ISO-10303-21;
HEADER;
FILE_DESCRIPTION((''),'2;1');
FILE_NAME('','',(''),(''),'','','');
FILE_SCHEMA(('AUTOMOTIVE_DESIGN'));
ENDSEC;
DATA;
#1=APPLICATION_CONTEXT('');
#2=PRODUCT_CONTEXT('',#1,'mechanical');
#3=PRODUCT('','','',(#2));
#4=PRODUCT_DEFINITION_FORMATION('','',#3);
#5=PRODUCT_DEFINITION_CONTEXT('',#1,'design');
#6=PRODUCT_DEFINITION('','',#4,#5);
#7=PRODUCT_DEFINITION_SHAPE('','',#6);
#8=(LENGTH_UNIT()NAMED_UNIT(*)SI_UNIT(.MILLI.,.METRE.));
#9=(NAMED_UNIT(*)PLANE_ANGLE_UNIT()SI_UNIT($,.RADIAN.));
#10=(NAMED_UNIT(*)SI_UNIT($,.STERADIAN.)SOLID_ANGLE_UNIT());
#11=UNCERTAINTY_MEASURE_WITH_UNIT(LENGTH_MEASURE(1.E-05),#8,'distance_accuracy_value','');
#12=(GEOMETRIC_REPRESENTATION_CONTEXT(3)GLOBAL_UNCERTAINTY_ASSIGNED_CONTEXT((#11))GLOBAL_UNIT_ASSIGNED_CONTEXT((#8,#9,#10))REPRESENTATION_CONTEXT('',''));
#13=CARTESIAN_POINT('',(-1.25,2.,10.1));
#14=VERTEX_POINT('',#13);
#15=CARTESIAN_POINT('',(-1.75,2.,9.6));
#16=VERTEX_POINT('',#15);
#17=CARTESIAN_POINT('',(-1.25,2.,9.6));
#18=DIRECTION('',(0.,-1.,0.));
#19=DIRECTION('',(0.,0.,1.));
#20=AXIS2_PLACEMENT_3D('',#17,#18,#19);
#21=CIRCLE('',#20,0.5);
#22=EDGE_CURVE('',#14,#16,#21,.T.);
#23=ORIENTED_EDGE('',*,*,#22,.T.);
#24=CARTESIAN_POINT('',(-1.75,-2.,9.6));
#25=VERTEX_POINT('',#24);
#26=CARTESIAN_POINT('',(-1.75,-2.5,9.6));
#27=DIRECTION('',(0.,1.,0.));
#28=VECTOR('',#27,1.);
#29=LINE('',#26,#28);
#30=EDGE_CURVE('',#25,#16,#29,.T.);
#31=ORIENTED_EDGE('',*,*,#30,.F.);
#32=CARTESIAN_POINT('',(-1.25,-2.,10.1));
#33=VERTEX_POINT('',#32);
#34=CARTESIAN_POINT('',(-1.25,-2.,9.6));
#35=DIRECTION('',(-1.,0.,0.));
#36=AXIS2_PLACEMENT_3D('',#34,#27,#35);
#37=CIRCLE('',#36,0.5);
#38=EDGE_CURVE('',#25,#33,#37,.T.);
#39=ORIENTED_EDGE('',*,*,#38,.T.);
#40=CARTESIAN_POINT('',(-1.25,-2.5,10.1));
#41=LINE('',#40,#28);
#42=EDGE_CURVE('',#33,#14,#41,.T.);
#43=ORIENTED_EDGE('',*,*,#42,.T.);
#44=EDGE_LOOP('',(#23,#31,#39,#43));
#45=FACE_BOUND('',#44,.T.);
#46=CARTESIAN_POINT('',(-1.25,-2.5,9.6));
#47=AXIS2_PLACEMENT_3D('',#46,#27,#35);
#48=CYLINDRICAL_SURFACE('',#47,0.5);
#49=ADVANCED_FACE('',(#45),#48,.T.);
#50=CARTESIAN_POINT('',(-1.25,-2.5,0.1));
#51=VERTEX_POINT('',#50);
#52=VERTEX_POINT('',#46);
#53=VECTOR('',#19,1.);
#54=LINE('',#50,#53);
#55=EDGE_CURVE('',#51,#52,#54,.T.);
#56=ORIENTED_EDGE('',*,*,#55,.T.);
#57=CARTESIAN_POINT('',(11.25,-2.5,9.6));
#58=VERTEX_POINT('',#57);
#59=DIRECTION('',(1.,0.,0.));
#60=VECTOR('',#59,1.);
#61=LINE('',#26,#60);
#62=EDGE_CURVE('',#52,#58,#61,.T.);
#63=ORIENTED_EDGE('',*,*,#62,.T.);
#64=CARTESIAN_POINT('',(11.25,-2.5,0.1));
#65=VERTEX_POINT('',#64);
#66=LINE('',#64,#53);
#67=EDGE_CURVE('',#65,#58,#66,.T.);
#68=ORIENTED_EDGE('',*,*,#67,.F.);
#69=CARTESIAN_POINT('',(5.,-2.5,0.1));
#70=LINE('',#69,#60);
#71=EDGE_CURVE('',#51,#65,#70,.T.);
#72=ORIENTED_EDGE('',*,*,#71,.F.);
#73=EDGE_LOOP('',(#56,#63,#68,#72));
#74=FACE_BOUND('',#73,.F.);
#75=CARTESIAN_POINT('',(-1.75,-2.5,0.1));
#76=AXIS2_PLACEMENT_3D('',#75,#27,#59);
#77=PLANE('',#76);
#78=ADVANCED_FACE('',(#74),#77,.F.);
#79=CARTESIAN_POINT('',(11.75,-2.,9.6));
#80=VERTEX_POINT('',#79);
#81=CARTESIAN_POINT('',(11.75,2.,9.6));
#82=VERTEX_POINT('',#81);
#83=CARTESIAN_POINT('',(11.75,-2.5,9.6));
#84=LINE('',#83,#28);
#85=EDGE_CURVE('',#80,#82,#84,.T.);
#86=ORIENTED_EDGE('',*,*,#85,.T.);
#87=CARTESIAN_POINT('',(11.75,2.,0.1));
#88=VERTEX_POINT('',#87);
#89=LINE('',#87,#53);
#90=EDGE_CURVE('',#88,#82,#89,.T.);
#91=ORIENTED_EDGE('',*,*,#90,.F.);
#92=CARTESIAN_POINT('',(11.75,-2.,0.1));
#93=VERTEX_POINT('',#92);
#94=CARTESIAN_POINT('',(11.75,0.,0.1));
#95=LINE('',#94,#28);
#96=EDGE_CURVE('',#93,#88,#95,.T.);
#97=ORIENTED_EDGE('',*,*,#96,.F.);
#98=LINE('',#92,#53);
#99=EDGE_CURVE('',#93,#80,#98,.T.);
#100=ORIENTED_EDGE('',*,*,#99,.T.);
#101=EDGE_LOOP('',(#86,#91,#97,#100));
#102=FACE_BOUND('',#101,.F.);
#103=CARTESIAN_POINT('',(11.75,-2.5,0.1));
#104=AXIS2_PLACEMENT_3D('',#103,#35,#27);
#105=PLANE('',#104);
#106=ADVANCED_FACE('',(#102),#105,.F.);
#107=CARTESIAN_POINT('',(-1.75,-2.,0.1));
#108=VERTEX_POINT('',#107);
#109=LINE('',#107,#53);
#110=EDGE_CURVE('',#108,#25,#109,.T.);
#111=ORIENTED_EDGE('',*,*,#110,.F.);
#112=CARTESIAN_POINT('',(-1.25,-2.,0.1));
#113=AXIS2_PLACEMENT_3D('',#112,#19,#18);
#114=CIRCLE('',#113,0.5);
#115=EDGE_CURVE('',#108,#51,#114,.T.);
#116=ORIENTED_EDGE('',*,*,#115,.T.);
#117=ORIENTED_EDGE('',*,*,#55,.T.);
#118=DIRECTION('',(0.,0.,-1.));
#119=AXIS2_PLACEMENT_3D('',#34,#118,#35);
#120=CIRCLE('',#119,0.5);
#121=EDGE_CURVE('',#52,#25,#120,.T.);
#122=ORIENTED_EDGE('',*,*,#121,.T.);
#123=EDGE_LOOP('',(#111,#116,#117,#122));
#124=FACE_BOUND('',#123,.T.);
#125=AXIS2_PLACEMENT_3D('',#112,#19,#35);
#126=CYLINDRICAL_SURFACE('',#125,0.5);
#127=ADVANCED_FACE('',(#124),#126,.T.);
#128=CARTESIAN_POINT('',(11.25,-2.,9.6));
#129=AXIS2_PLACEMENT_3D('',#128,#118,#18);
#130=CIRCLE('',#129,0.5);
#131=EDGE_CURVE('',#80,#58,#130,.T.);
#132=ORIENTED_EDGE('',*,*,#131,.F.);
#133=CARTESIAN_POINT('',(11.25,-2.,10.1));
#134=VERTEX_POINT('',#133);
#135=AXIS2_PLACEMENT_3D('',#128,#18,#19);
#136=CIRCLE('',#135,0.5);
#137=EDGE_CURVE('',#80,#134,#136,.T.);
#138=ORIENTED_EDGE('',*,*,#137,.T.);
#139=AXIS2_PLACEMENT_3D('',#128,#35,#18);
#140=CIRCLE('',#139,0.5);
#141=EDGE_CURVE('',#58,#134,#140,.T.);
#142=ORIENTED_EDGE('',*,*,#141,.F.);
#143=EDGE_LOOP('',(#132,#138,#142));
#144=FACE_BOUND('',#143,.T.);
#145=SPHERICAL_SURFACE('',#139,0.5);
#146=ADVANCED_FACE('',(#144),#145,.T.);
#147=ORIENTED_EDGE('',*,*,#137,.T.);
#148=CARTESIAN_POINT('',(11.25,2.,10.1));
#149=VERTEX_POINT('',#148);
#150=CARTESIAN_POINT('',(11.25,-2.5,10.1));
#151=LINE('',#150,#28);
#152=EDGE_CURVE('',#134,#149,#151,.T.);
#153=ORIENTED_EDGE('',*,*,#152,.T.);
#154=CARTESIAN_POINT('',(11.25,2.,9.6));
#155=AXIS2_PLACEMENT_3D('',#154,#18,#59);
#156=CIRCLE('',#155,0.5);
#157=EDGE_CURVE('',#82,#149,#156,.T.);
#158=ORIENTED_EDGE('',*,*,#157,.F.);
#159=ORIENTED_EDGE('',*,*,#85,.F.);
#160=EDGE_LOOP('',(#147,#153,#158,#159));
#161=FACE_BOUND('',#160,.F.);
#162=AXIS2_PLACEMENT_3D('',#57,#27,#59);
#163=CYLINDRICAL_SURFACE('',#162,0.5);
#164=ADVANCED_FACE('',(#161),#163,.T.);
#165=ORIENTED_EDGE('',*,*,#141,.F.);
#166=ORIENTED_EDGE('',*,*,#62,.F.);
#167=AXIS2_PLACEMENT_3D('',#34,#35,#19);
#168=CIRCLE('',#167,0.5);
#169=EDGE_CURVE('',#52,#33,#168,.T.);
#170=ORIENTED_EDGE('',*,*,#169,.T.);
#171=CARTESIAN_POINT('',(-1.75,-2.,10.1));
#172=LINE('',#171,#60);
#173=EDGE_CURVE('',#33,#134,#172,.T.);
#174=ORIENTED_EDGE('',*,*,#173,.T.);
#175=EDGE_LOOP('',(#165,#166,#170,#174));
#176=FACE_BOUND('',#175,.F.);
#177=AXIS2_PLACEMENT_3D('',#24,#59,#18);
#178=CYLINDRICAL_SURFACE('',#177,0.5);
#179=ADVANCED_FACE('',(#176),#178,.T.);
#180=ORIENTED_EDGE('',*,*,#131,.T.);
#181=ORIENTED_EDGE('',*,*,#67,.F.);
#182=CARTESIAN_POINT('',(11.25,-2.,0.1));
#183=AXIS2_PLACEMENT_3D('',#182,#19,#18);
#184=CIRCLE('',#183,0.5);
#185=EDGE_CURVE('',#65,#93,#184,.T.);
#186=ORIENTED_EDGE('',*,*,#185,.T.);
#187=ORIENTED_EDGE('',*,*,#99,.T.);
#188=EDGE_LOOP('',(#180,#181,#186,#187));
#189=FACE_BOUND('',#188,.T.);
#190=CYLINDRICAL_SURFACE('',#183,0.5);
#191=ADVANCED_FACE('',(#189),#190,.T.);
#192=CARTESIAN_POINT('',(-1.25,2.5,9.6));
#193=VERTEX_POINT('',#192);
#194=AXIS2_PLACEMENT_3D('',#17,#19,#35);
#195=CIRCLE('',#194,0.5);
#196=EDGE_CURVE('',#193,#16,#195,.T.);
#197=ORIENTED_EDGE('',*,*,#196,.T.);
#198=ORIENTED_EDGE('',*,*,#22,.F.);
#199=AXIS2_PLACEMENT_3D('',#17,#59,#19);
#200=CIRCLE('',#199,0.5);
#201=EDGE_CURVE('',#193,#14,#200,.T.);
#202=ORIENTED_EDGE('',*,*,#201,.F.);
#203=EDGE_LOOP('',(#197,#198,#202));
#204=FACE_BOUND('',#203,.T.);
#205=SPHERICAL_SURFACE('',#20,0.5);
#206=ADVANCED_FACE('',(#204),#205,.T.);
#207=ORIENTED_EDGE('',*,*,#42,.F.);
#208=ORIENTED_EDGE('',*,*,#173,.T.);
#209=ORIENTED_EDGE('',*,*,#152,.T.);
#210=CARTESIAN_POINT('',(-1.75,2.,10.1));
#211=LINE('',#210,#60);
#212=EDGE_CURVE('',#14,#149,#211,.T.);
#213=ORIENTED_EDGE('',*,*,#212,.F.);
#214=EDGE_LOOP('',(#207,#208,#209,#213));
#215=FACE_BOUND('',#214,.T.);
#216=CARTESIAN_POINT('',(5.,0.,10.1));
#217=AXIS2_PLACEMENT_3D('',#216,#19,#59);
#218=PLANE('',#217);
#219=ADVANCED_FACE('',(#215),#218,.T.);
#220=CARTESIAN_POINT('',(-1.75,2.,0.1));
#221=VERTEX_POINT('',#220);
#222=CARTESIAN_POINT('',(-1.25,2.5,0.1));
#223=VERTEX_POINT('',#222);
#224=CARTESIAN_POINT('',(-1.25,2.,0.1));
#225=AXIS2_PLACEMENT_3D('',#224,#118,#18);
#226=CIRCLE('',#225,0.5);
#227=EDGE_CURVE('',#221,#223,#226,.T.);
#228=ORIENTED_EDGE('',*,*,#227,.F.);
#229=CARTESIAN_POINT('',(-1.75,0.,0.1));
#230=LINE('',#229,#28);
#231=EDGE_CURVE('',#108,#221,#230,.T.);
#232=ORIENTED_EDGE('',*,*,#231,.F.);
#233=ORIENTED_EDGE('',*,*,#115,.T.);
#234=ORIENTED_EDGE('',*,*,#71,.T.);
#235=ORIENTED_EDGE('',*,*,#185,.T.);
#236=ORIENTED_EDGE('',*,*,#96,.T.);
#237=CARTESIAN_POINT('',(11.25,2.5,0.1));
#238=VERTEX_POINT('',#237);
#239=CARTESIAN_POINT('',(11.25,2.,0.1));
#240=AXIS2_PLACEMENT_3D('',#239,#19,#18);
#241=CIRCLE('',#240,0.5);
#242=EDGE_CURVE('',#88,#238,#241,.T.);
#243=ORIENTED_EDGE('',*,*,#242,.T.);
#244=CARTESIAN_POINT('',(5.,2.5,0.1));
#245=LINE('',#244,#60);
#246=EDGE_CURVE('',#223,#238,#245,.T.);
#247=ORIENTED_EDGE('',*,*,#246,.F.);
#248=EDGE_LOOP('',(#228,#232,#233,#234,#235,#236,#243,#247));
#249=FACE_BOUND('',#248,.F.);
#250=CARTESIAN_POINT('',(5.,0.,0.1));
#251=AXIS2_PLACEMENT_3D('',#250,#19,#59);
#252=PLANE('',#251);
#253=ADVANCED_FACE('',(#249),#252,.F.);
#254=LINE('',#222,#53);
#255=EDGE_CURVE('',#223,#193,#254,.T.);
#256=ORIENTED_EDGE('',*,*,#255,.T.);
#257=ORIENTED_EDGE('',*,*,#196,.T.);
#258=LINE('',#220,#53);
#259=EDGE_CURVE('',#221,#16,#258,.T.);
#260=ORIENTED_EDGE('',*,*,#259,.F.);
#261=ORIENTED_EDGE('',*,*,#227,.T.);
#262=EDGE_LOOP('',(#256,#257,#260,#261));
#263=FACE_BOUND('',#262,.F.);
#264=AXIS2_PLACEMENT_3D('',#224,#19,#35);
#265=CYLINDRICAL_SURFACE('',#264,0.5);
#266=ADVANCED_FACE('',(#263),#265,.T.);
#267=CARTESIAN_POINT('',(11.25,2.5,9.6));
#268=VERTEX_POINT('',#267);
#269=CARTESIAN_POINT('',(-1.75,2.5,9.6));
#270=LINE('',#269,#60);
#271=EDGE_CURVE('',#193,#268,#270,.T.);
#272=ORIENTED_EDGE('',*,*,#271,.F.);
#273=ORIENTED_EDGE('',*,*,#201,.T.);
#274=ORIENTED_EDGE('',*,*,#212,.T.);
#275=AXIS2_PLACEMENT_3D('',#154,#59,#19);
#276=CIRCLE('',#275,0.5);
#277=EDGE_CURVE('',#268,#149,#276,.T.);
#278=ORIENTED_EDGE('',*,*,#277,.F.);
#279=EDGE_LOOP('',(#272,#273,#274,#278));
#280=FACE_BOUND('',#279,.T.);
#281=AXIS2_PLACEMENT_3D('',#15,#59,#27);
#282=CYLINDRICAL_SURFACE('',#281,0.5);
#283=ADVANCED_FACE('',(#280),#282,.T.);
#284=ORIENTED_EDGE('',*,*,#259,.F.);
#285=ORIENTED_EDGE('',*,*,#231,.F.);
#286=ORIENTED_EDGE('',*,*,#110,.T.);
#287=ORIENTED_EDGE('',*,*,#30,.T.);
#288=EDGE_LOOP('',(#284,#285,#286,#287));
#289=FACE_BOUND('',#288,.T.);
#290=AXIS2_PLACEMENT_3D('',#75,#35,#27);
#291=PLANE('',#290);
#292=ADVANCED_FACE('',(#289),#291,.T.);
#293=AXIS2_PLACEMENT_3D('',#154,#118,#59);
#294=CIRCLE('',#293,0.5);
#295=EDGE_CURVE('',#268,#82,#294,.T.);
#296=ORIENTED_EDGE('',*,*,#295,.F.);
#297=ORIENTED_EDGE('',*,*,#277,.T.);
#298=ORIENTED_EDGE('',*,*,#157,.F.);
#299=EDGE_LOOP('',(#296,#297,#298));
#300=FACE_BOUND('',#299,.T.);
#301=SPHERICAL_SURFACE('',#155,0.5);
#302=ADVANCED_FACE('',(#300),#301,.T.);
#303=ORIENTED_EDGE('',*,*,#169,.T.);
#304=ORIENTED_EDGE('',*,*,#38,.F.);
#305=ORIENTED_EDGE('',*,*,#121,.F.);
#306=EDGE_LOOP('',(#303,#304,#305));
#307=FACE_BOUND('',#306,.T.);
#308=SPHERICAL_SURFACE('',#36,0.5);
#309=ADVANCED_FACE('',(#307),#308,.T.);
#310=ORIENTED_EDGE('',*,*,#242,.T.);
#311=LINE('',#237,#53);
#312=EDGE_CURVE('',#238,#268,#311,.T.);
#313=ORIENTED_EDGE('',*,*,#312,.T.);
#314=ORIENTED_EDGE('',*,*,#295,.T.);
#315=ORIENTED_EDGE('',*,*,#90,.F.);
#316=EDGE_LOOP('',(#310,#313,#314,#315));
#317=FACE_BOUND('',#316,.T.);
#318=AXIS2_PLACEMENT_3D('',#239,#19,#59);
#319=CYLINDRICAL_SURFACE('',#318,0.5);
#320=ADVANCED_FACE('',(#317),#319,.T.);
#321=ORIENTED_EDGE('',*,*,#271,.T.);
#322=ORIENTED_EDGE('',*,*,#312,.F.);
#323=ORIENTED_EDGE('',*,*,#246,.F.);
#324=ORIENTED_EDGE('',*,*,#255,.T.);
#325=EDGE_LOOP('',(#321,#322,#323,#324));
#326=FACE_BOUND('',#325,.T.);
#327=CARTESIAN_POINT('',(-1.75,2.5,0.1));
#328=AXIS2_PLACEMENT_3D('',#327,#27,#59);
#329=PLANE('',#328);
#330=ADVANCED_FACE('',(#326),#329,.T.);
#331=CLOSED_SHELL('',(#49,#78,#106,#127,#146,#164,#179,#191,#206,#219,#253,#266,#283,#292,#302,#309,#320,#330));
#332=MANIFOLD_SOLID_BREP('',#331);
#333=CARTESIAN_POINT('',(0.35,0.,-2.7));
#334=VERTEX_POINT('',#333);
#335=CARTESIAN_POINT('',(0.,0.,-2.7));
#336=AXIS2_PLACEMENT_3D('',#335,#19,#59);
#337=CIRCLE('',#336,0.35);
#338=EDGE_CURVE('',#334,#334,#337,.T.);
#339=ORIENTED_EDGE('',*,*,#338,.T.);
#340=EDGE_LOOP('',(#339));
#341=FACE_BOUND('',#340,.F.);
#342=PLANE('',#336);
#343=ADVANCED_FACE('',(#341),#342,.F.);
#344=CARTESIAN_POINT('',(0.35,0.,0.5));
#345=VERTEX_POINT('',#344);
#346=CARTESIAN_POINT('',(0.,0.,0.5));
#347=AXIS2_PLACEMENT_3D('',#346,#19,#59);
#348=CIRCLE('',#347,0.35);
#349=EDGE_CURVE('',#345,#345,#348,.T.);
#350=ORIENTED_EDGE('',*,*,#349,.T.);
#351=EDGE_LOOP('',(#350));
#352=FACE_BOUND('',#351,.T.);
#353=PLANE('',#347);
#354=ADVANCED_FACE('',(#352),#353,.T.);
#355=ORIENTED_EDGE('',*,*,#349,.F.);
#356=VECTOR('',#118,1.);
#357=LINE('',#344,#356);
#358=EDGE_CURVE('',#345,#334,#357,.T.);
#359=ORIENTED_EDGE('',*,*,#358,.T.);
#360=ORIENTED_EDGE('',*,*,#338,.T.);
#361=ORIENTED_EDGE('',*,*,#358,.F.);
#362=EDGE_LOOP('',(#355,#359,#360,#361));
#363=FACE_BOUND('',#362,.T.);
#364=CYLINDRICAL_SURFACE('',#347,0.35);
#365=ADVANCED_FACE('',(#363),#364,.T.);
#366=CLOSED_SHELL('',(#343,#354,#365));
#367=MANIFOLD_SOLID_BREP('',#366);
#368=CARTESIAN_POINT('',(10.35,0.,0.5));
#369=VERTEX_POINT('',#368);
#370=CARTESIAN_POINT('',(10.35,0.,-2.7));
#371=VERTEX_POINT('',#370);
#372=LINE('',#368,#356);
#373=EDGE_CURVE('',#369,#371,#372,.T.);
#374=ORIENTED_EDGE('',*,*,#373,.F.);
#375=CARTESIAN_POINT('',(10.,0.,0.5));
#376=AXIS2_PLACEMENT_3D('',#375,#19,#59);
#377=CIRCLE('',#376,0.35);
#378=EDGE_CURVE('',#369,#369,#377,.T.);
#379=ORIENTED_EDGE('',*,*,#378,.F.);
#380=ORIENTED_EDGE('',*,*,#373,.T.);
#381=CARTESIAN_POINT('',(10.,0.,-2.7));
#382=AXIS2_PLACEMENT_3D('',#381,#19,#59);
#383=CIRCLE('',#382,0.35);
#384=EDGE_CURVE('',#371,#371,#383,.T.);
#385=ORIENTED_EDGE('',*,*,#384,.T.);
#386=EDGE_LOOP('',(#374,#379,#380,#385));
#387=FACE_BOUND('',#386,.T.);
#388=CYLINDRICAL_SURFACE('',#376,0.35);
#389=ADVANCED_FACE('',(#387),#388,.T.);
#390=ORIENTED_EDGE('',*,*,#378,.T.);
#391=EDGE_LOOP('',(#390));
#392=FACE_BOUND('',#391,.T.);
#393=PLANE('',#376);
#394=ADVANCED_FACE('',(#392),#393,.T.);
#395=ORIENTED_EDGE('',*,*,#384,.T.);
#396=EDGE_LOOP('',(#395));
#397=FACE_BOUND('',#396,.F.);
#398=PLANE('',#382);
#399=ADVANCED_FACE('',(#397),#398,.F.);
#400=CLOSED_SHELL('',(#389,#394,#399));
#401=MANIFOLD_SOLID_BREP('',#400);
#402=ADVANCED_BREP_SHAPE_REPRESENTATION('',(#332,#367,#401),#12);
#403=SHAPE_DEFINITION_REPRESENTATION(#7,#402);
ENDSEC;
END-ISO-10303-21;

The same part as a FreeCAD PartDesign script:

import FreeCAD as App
import Part
import Sketcher
from FreeCAD import Vector
Q = App.Units.Quantity


def edges_at(feature, points):
    """Names of the edges that pass closest to the given points."""
    edges = feature.Shape.Edges
    near = lambda p: min(range(len(edges)), key=lambda i: edges[i].distToShape(Part.Vertex(*p))[0])
    return sorted({f"Edge{near(p) + 1}" for p in points})

doc = App.newDocument("Part")
body = doc.addObject("PartDesign::Body", "Body")

# Sketch on XY plane
sketch1 = body.newObject("Sketcher::SketchObject", "Sketch")
sketch1.AttachmentSupport = (doc.getObject("XY_Plane"), [""])
sketch1.MapMode = "FlatFace"
sketch1.AttachmentOffset = App.Placement(Vector(0, 0, 0.1), App.Rotation())
sketch1.addGeometry([
    Part.LineSegment(Vector(-1.75, 2.5, 0), Vector(-1.75, -2.5, 0)),
    Part.LineSegment(Vector(-1.75, -2.5, 0), Vector(11.75, -2.5, 0)),
    Part.LineSegment(Vector(11.75, -2.5, 0), Vector(11.75, 2.5, 0)),
    Part.LineSegment(Vector(11.75, 2.5, 0), Vector(-1.75, 2.5, 0)),
], False)
sketch1.addConstraint([
    Sketcher.Constraint("Coincident", 0, 2, 1, 1),
    Sketcher.Constraint("Coincident", 1, 2, 2, 1),
    Sketcher.Constraint("Coincident", 2, 2, 3, 1),
    Sketcher.Constraint("Coincident", 3, 2, 0, 1),
    Sketcher.Constraint("Vertical", 0),
    Sketcher.Constraint("Horizontal", 1),
    Sketcher.Constraint("Vertical", 2),
    Sketcher.Constraint("Horizontal", 3),
    Sketcher.Constraint("DistanceY", 0, 2, 0, 1, Q("5 mm")),
    Sketcher.Constraint("DistanceX", 1, 1, 1, 2, Q("13.5 mm")),
    Sketcher.Constraint("DistanceY", 0, 2, -1, 1, Q("2.5 mm")),
    Sketcher.Constraint("DistanceX", 0, 2, -1, 1, Q("1.75 mm")),
])
pad1 = body.newObject("PartDesign::Pad", "Pad")
pad1.Profile = sketch1
pad1.Length = 10
doc.recompute()

fillet = body.newObject("PartDesign::Fillet", "Fillet")
fillet.Base = (pad1, edges_at(pad1, [
    (-1.75, 0, 10.1),
    (-1.75, -2.5, 5.1),
    (5, -2.5, 10.1),
    (11.75, -2.5, 5.1),
    (11.75, 0, 10.1),
    (11.75, 2.5, 5.1),
    (5, 2.5, 10.1),
    (-1.75, 2.5, 5.1),
]))
fillet.Radius = 0.5
body2 = doc.addObject("PartDesign::Body", "Body001")
body2.AllowCompound = True

# Sketch on XY plane
sketch2 = body2.newObject("Sketcher::SketchObject", "Sketch001")
sketch2.AttachmentSupport = (doc.getObject("XY_Plane001"), [""])
sketch2.MapMode = "FlatFace"
sketch2.AttachmentOffset = App.Placement(Vector(0, 0, 0.5), App.Rotation())
sketch2.addGeometry([
    Part.Circle(Vector(0, 0, 0), Vector(0, 0, 1), 0.35),
    Part.Circle(Vector(10, 0, 0), Vector(0, 0, 1), 0.35),
], False)
sketch2.addConstraint([
    Sketcher.Constraint("Coincident", 0, 3, -1, 1),
    Sketcher.Constraint("Equal", 0, 1),
    Sketcher.Constraint("PointOnObject", 1, 3, -1),
    Sketcher.Constraint("Diameter", 0, Q("0.7 mm")),
    Sketcher.Constraint("DistanceX", -1, 1, 1, 3, Q("10 mm")),
])
pad2 = body2.newObject("PartDesign::Pad", "Pad001")
pad2.Profile = sketch2
pad2.Length = 3.2
pad2.Reversed = True

doc.recompute()
